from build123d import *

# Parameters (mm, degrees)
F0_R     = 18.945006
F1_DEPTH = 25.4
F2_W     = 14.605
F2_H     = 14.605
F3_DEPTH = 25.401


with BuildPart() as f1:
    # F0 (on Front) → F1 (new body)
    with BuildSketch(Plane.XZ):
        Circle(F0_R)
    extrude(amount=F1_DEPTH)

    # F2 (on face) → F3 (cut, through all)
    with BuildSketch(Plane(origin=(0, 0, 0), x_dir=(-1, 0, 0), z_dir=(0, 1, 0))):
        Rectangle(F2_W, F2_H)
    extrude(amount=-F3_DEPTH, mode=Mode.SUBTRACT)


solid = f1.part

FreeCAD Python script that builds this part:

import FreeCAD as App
import Part
import Sketcher
from FreeCAD import Vector
Q = App.Units.Quantity


def add_polygon(sketch, points):
    """Adds a closed chain of lines whose ends are joined by coincident constraints."""
    first, n = sketch.GeometryCount, len(points)
    for a, b in zip(points, points[1:] + points[:1]):
        sketch.addGeometry(Part.LineSegment(App.Vector(*a, 0), App.Vector(*b, 0)), False)
    for i in range(n):
        sketch.addConstraint(Sketcher.Constraint("Coincident", first + i, 2, first + (i + 1) % n, 1))

doc = App.newDocument("Part")
body = doc.addObject("PartDesign::Body", "Body")

# Sketch on XZ plane
sketch1 = doc.addObject("Sketcher::SketchObject", "Sketch")
body.addObject(sketch1)
sketch1.AttachmentSupport = (doc.XZ_Plane, [""])
sketch1.MapMode = "FlatFace"
sketch1.addGeometry(Part.Circle(Vector(0, 0, 0), Vector(0, 0, 1), 18.945006), False)
sketch1.addConstraint([
    Sketcher.Constraint("Coincident", 0, 3, -1, 1),
    Sketcher.Constraint("Diameter", 0, Q("37.890012 mm")),
])
pad1 = doc.addObject("PartDesign::Pad", "Pad")
body.addObject(pad1)
pad1.Profile = sketch1
pad1.Length = Q("1 in")

# Sketch on XZ plane
sketch2 = doc.addObject("Sketcher::SketchObject", "Sketch001")
body.addObject(sketch2)
sketch2.AttachmentSupport = (doc.XZ_Plane, [""])
sketch2.MapMode = "FlatFace"
add_polygon(sketch2, [(7.3025, 7.3025), (7.3025, -7.3025), (-7.3025, -7.3025), (-7.3025, 7.3025)])  # lines 0-3
sketch2.addConstraint([
    Sketcher.Constraint("Vertical", 0),
    Sketcher.Constraint("Horizontal", 1),
    Sketcher.Constraint("Vertical", 2),
    Sketcher.Constraint("Horizontal", 3),
    Sketcher.Constraint("Symmetric", 0, 2, 2, 2, -1, 1),
    Sketcher.Constraint("Equal", 3, 0),
    Sketcher.Constraint("DistanceX", 1, 2, 1, 1, Q("0.575 in")),
])
pocket1 = doc.addObject("PartDesign::Pocket", "Pocket")
body.addObject(pocket1)
pocket1.Profile = sketch2
pocket1.Type = "ThroughAll"
pocket1.Reversed = True

doc.recompute()
